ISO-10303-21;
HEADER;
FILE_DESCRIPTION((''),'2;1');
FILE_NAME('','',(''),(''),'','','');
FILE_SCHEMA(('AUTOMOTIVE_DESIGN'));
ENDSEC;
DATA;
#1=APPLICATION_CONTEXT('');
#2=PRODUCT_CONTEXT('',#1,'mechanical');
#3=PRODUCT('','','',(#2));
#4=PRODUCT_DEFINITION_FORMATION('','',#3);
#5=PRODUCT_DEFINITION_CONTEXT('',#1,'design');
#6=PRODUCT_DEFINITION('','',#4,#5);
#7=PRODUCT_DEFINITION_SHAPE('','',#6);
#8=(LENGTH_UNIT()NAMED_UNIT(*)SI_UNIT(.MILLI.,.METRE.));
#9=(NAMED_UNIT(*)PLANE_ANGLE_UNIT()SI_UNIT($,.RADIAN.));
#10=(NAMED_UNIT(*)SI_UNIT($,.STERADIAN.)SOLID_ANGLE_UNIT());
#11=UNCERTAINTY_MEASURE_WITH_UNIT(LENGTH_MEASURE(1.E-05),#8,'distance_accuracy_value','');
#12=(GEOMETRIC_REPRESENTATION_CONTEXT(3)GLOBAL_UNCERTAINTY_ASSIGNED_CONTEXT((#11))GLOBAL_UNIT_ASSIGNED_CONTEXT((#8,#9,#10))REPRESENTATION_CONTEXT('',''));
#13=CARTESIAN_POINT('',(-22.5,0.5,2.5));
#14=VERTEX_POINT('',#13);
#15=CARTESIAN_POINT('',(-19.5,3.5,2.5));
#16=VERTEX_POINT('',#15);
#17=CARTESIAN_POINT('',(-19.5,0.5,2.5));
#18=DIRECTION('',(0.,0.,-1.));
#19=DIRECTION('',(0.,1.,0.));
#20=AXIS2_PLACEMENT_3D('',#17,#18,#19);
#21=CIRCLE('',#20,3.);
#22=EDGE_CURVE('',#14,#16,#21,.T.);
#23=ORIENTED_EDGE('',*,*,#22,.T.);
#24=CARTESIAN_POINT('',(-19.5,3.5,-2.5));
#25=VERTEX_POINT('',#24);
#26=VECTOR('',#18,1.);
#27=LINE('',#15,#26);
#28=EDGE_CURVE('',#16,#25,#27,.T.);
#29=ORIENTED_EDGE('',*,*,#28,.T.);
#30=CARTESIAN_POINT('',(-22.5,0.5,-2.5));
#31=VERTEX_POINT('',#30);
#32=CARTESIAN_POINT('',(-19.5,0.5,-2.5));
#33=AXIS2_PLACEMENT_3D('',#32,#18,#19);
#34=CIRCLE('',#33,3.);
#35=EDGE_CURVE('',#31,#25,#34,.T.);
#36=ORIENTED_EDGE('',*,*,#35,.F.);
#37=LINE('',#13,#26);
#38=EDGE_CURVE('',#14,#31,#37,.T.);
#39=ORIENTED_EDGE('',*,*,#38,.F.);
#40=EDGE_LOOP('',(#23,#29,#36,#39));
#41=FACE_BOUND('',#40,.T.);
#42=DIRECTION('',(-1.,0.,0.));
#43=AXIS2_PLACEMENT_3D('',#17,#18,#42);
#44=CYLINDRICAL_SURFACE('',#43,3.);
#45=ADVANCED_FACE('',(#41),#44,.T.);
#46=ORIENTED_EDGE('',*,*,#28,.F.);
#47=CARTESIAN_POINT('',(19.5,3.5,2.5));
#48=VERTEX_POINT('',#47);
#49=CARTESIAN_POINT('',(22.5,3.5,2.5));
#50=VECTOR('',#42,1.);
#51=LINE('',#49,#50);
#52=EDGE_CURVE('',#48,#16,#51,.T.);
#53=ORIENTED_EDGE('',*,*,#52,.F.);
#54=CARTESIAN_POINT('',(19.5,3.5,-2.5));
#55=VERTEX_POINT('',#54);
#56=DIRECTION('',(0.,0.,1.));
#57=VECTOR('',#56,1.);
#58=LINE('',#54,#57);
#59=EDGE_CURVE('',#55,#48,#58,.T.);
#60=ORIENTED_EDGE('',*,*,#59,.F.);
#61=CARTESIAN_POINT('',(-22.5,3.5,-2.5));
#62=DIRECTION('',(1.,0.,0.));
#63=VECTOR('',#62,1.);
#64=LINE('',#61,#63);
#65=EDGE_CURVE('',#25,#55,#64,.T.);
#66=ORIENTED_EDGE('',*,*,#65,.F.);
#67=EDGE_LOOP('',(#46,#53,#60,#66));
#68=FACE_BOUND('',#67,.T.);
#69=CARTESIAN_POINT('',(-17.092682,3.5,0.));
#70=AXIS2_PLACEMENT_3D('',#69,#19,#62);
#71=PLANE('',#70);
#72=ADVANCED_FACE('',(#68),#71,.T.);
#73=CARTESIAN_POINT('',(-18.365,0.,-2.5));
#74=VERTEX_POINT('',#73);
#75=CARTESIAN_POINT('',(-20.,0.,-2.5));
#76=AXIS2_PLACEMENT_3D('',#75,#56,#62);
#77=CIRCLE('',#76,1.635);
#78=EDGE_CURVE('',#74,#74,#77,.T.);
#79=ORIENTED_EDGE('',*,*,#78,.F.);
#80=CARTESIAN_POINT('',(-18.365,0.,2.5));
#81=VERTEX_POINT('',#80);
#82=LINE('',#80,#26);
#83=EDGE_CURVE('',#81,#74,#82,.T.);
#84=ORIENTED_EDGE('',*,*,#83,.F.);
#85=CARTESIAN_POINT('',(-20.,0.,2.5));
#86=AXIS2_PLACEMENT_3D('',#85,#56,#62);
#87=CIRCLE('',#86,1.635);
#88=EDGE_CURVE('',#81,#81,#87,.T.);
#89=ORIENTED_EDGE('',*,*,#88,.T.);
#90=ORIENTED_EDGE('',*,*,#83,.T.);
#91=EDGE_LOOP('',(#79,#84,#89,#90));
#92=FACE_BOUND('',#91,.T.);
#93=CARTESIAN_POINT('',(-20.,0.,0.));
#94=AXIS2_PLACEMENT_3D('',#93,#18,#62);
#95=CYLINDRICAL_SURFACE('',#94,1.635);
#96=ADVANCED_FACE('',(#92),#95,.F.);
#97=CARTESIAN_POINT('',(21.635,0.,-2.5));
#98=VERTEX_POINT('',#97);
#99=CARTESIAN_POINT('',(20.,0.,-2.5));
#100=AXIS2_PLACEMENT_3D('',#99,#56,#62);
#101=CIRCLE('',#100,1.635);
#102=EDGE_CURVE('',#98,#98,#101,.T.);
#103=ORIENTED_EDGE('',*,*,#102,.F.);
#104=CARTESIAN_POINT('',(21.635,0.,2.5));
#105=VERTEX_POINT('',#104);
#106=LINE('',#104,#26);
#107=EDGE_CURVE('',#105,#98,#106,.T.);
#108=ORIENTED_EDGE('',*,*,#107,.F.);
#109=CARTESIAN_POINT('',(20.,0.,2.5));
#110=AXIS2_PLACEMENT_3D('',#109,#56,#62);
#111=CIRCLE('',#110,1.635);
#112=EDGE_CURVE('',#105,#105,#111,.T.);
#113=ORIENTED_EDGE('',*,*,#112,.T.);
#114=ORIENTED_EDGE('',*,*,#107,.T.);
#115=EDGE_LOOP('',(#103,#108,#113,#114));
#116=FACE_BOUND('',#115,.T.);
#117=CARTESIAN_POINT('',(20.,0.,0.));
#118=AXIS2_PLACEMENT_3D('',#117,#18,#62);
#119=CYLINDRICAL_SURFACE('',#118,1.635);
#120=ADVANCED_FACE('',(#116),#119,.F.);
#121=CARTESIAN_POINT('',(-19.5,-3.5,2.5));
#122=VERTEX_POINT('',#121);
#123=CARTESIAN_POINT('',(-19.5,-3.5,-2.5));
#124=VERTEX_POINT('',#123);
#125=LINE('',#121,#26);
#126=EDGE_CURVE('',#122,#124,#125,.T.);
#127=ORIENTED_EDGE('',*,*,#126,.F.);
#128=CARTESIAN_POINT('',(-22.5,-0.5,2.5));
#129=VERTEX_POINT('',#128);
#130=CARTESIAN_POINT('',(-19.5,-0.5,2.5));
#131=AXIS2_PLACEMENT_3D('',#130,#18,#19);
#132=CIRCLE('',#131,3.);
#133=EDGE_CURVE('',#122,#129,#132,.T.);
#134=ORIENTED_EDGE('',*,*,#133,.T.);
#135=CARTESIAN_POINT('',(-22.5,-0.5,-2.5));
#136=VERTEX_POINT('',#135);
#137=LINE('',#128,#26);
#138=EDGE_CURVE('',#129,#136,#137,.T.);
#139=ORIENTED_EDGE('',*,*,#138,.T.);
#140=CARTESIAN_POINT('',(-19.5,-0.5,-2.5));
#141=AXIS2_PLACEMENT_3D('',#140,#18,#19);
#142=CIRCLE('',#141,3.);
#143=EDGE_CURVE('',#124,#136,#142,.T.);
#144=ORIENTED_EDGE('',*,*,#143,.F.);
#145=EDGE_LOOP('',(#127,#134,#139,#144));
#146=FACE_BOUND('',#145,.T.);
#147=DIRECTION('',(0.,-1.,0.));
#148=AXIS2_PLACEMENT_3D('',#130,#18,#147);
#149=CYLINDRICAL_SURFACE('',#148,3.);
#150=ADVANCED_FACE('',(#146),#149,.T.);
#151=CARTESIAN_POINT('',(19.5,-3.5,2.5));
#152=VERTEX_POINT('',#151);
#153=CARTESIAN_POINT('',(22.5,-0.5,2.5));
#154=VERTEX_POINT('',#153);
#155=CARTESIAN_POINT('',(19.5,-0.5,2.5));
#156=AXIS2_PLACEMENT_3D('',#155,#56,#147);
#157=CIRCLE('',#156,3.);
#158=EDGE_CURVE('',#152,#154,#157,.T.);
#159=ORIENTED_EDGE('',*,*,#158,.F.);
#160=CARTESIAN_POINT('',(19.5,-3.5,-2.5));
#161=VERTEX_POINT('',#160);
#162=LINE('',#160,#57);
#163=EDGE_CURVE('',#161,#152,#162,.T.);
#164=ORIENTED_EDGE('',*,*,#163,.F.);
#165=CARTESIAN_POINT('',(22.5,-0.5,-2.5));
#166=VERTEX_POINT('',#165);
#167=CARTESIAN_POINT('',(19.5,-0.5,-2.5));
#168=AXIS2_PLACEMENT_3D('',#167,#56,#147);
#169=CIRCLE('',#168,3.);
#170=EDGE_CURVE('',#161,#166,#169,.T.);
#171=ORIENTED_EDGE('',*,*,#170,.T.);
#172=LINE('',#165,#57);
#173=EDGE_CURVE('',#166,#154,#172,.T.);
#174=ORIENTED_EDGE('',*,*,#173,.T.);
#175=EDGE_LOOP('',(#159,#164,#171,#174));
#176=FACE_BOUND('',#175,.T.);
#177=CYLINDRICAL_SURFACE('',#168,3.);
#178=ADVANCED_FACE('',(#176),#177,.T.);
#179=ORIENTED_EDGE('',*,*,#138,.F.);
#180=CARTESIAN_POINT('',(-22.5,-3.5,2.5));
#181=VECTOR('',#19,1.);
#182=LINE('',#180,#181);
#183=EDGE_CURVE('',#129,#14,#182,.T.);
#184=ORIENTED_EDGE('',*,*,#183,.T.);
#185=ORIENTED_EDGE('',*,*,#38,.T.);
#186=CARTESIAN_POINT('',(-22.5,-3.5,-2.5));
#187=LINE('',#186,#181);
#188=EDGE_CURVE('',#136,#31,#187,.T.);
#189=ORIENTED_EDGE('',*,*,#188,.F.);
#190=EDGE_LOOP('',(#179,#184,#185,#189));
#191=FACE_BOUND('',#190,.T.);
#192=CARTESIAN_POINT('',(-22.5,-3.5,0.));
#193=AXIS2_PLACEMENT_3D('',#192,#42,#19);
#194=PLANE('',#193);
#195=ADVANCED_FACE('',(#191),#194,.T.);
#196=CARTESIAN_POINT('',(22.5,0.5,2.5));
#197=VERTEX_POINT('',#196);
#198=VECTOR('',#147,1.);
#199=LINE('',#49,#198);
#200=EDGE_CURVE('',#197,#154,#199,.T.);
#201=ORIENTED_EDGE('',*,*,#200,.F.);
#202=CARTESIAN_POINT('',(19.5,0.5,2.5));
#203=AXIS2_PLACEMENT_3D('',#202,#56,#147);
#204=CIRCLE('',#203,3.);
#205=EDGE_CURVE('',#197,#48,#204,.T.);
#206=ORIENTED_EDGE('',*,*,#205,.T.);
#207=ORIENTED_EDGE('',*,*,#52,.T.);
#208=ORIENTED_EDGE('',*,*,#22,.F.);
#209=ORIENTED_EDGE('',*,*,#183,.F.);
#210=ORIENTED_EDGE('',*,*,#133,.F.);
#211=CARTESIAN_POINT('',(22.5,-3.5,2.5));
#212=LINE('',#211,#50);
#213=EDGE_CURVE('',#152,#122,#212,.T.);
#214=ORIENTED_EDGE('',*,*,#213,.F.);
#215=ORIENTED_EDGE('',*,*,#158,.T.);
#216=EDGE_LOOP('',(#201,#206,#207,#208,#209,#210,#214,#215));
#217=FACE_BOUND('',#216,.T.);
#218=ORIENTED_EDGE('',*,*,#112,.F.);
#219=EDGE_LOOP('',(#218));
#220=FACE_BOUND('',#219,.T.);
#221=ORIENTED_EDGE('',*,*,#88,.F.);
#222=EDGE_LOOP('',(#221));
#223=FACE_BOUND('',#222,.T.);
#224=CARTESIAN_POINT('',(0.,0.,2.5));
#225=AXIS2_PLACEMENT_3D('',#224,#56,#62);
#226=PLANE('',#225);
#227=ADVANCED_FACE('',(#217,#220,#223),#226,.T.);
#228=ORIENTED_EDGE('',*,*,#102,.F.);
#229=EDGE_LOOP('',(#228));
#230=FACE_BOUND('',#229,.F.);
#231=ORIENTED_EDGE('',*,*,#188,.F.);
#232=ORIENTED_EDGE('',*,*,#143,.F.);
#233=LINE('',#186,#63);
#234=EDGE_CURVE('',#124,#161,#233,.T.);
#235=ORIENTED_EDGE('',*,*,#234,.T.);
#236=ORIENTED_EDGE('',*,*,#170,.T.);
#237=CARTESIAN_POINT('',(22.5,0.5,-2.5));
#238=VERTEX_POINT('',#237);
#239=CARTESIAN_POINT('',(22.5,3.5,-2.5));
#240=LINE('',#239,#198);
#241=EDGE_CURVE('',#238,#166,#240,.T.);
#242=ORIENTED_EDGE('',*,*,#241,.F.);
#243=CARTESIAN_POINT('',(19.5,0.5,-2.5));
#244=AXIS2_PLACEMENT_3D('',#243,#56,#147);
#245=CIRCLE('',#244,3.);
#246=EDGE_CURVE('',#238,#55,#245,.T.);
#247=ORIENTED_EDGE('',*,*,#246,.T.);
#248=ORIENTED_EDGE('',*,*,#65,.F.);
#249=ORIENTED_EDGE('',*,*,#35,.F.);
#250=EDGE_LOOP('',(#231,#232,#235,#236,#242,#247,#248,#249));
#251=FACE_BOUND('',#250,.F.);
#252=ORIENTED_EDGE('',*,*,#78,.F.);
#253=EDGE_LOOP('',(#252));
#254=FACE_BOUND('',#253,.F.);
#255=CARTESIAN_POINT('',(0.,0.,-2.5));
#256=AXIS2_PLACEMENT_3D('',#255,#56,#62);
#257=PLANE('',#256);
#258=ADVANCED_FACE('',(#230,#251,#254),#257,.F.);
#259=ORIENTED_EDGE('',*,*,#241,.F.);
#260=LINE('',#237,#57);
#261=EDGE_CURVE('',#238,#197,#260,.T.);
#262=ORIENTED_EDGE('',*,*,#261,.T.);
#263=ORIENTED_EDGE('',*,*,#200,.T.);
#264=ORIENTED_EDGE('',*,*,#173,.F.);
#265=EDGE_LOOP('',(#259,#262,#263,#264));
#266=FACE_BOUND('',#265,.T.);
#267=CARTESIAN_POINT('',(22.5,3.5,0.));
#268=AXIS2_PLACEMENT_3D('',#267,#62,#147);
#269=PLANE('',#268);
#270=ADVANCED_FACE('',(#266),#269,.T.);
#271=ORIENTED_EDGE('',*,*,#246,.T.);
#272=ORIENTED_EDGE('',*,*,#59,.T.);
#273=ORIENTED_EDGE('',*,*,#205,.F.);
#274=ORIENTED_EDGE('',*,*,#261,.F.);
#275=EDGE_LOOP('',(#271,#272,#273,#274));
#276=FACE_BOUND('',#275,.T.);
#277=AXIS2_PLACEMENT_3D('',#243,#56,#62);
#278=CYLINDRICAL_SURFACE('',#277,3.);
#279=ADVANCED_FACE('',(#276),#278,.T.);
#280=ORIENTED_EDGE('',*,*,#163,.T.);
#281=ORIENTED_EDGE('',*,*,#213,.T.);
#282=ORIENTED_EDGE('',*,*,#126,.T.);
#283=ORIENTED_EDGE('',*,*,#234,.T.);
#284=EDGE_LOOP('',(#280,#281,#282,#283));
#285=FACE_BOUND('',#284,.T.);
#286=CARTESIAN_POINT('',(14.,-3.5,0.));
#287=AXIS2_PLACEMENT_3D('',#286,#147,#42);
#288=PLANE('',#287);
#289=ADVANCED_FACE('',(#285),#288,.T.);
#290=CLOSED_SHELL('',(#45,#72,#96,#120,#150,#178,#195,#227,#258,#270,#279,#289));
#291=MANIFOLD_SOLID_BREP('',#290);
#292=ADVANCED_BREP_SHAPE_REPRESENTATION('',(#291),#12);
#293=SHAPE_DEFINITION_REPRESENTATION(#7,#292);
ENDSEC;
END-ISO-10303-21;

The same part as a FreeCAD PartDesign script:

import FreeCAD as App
import Part
import Sketcher

V = App.Vector
Q = App.Units.Quantity


def edges_at(feature, points):
    """Names of the edges that pass closest to the given points."""
    edges = feature.Shape.Edges
    near = lambda p: min(range(len(edges)), key=lambda i: edges[i].distToShape(Part.Vertex(*p))[0])
    return sorted({f"Edge{near(p) + 1}" for p in points})

doc = App.newDocument("Part")
body = doc.addObject("PartDesign::Body", "Body")

# Sketch on XY plane
sketch1 = doc.addObject("Sketcher::SketchObject", "Sketch")
body.addObject(sketch1)
sketch1.AttachmentSupport = (doc.XY_Plane, [""])
sketch1.MapMode = "FlatFace"
sketch1.addGeometry([
    Part.LineSegment(V(22.5, -3.5, 0), V(22.5, 3.5, 0)),  # 0
    Part.LineSegment(V(22.5, 3.5, 0), V(-22.5, 3.5, 0)),  # 1
    Part.LineSegment(V(-22.5, 3.5, 0), V(-22.5, -3.5, 0)),  # 2
    Part.LineSegment(V(-22.5, -3.5, 0), V(22.5, -3.5, 0)),  # 3
    Part.Circle(V(-20, 0, 0), V(0, 0, 1), 1.635),  # 4
    Part.Circle(V(20, 0, 0), V(0, 0, 1), 1.635),  # 5
], False)
sketch1.addConstraint([
    Sketcher.Constraint("Coincident", 0, 2, 1, 1),
    Sketcher.Constraint("Coincident", 1, 2, 2, 1),
    Sketcher.Constraint("Coincident", 2, 2, 3, 1),
    Sketcher.Constraint("Coincident", 3, 2, 0, 1),
    Sketcher.Constraint("Vertical", 0),
    Sketcher.Constraint("Horizontal", 1),
    Sketcher.Constraint("Vertical", 2),
    Sketcher.Constraint("Horizontal", 3),
    Sketcher.Constraint("Equal", 4, 5),
    Sketcher.Constraint("Symmetric", 4, 3, 5, 3, -1, 1),
    Sketcher.Constraint("Symmetric", 0, 2, 2, 2, -1, 1),
    Sketcher.Constraint("PointOnObject", 4, 3, -1),
    Sketcher.Constraint("Diameter", 4, Q("3.27 mm")),
    Sketcher.Constraint("DistanceX", 1, 2, 1, 1, Q("45 mm")),
    Sketcher.Constraint("DistanceY", 0, 1, 0, 2, Q("7 mm")),
    Sketcher.Constraint("DistanceX", 4, 3, -1, 1, Q("20 mm")),
])
pad1 = doc.addObject("PartDesign::Pad", "Pad")
body.addObject(pad1)
pad1.Profile = sketch1
pad1.Length = 5
pad1.Midplane = True
doc.recompute()

fillet = doc.addObject("PartDesign::Fillet", "Fillet")
body.addObject(fillet)
fillet.Base = (pad1, edges_at(pad1, [
    (-22.5, 3.5, 0),
    (-22.5, -3.5, 0),
    (22.5, -3.5, 0),
    (22.5, 3.5, 0),
]))
fillet.Radius = 3

doc.recompute()
